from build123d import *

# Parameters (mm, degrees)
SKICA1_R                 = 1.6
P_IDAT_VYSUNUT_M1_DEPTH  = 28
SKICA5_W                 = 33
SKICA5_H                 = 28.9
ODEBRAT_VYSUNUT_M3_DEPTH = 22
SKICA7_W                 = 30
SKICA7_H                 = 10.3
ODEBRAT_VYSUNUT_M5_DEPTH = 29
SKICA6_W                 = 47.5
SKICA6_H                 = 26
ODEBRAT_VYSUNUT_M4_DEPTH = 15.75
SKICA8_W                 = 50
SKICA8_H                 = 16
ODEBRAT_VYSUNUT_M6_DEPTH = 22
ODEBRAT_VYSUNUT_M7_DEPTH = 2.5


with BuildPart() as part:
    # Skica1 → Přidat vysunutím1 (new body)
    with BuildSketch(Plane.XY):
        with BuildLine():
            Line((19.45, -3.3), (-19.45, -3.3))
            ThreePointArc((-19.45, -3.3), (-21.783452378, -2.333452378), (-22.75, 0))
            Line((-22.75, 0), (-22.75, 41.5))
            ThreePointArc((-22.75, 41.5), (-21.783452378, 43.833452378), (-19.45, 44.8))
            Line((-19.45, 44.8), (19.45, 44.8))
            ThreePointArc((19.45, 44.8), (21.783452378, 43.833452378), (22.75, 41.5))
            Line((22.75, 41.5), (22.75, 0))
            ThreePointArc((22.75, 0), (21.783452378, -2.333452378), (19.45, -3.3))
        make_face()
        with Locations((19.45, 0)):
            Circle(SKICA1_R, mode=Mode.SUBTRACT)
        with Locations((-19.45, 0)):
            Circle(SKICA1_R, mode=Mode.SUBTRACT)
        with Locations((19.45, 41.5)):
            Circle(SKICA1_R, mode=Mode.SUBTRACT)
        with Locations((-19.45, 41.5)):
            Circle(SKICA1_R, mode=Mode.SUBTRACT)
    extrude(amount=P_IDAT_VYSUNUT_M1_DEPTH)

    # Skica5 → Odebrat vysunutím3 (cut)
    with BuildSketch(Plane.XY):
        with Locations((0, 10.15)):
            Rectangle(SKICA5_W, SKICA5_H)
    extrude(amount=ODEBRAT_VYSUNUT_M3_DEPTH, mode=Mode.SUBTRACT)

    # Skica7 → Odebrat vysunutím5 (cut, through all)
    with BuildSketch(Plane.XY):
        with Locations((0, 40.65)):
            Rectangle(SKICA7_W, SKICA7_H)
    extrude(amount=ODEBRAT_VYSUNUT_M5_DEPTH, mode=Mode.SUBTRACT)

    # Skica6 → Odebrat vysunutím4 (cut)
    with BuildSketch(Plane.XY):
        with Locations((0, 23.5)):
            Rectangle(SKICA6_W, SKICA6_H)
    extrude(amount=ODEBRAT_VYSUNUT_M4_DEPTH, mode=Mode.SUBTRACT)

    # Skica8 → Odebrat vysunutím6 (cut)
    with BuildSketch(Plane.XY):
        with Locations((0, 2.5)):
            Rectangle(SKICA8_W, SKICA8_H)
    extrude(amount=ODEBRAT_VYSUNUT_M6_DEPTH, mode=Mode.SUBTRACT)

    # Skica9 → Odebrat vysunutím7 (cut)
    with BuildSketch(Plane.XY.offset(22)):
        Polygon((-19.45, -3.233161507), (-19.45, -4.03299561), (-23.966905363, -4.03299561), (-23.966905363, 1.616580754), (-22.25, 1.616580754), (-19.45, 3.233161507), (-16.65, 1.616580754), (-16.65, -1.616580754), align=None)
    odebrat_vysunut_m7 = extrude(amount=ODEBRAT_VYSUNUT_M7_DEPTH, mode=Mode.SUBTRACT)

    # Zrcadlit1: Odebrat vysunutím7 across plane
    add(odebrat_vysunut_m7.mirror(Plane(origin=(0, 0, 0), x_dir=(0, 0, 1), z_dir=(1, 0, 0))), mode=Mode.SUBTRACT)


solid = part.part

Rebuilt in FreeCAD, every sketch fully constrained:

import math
import FreeCAD as App
import Part
import Sketcher

V = App.Vector
Q = App.Units.Quantity

doc = App.newDocument("Part")
params = doc.addObject("Spreadsheet::Sheet", "Params")
for row, (alias, value) in enumerate([
    ("sketch1_diameter", "3.2 mm"),
    ("sketch1_radius", "3.3 mm"),
    ("sketch1_width", "38.9 mm"),
    ("sketch1_height", "41.5 mm"),
    ("pad1_length", "28 mm"),
    ("sketch2_width", "33 mm"),
    ("sketch2_height", "28.9 mm"),
    ("pocket1_length", "22 mm"),
    ("sketch3_width", "30 mm"),
    ("sketch3_height", "10.3 mm"),
    ("sketch4_height", "26 mm"),
    ("sketch4_width", "47.5 mm"),
    ("pocket3_length", "15.75 mm"),
    ("sketch5_width", "50 mm"),
    ("sketch5_height", "16 mm"),
    ("pocket4_length", "22 mm"),
    ("pocket5_length", "2.5 mm"),
], start=1):
    params.set(f"A{row}", alias)
    params.set(f"B{row}", "=" + value)
    params.setAlias(f"B{row}", alias)

body = doc.addObject("PartDesign::Body", "Body")

sketch1 = body.newObject("Sketcher::SketchObject", "Sketch")
sketch1.AttachmentSupport = (doc.getObject("XY_Plane"), [""])
sketch1.MapMode = "FlatFace"
sketch1.addGeometry([
    Part.LineSegment(V(-19.4, -3.3, 0), V(19.4, -3.3, 0)),
    Part.ArcOfCircle(Part.Circle(V(19.4, 0, 0), V(0, 0, 1), 3.3), math.radians(-90), math.radians(0)),
    Part.LineSegment(V(22.8, 0, 0), V(22.8, 41.5, 0)),
    Part.ArcOfCircle(Part.Circle(V(19.4, 41.5, 0), V(0, 0, 1), 3.3), math.radians(0), math.radians(90)),
    Part.LineSegment(V(19.4, 44.8, 0), V(-19.4, 44.8, 0)),
    Part.ArcOfCircle(Part.Circle(V(-19.4, 41.5, 0), V(0, 0, 1), 3.3), math.radians(90), math.radians(180)),
    Part.LineSegment(V(-22.8, 41.5, 0), V(-22.8, 0, 0)),
    Part.ArcOfCircle(Part.Circle(V(-19.4, 0, 0), V(0, 0, 1), 3.3), math.radians(180), math.radians(270)),
    Part.Circle(V(19.4, 0, 0), V(0, 0, 1), 1.6),
    Part.Circle(V(-19.4, 0, 0), V(0, 0, 1), 1.6),
    Part.Circle(V(19.4, 41.5, 0), V(0, 0, 1), 1.6),
    Part.Circle(V(-19.4, 41.5, 0), V(0, 0, 1), 1.6),
], False)
sketch1.addConstraint([
    Sketcher.Constraint("Tangent", 0, 2, 1, 1),
    Sketcher.Constraint("Tangent", 1, 2, 2, 1),
    Sketcher.Constraint("Tangent", 2, 2, 3, 1),
    Sketcher.Constraint("Tangent", 3, 2, 4, 1),
    Sketcher.Constraint("Tangent", 4, 2, 5, 1),
    Sketcher.Constraint("Tangent", 5, 2, 6, 1),
    Sketcher.Constraint("Tangent", 6, 2, 7, 1),
    Sketcher.Constraint("Tangent", 7, 2, 0, 1),
    Sketcher.Constraint("Horizontal", 0),
    Sketcher.Constraint("Vertical", 2),
    Sketcher.Constraint("Horizontal", 4),
    Sketcher.Constraint("Vertical", 6),
    Sketcher.Constraint("Coincident", 8, 3, 1, 3),
    Sketcher.Constraint("Coincident", 9, 3, 7, 3),
    Sketcher.Constraint("Coincident", 10, 3, 3, 3),
    Sketcher.Constraint("Coincident", 11, 3, 5, 3),
    Sketcher.Constraint("Equal", 1, 3),
    Sketcher.Constraint("Equal", 3, 5),
    Sketcher.Constraint("Equal", 5, 7),
    Sketcher.Constraint("Equal", 8, 9),
    Sketcher.Constraint("Equal", 9, 10),
    Sketcher.Constraint("Equal", 10, 11),
    Sketcher.Constraint("Symmetric", 1, 3, 7, 3, -1, 1),
    Sketcher.Constraint("Diameter", 8, Q("3.2 mm")),
    Sketcher.Constraint("Radius", 1, Q("3.3 mm")),
    Sketcher.Constraint("DistanceX", 0, 1, 0, 2, Q("38.9 mm")),
    Sketcher.Constraint("DistanceY", 2, 1, 2, 2, Q("41.5 mm")),
])
sketch1.setExpression("Constraints[23]", "Params.sketch1_diameter")
sketch1.setExpression("Constraints[24]", "Params.sketch1_radius")
sketch1.setExpression("Constraints[25]", "Params.sketch1_width")
sketch1.setExpression("Constraints[26]", "Params.sketch1_height")
pad1 = body.newObject("PartDesign::Pad", "Pad")
pad1.Profile = sketch1
pad1.setExpression("Length", "Params.pad1_length")

sketch2 = body.newObject("Sketcher::SketchObject", "Sketch001")
sketch2.AttachmentSupport = (doc.getObject("XY_Plane"), [""])
sketch2.MapMode = "FlatFace"
sketch2.addGeometry([
    Part.LineSegment(V(-16, 25, 0), V(-16, -4, 0)),
    Part.LineSegment(V(-16, -4, 0), V(16, -4, 0)),
    Part.LineSegment(V(16, -4, 0), V(16, 25, 0)),
    Part.LineSegment(V(16, 25, 0), V(-16, 25, 0)),
], False)
sketch2.addConstraint([
    Sketcher.Constraint("Coincident", 0, 2, 1, 1),
    Sketcher.Constraint("Coincident", 1, 2, 2, 1),
    Sketcher.Constraint("Coincident", 2, 2, 3, 1),
    Sketcher.Constraint("Coincident", 3, 2, 0, 1),
    Sketcher.Constraint("Vertical", 0),
    Sketcher.Constraint("Horizontal", 1),
    Sketcher.Constraint("Vertical", 2),
    Sketcher.Constraint("Horizontal", 3),
    Sketcher.Constraint("DistanceX", 1, 1, 1, 2, Q("33 mm")),
    Sketcher.Constraint("DistanceY", 0, 2, 0, 1, Q("28.9 mm")),
    Sketcher.Constraint("DistanceX", 0, 2, -1, 1, Q("16.5 mm")),
    Sketcher.Constraint("DistanceY", 0, 2, -1, 1, Q("4.3 mm")),
])
sketch2.setExpression("Constraints[8]", "Params.sketch2_width")
sketch2.setExpression("Constraints[9]", "Params.sketch2_height")
pocket1 = body.newObject("PartDesign::Pocket", "Pocket")
pocket1.Profile = sketch2
pocket1.setExpression("Length", "Params.pocket1_length")
pocket1.Reversed = True

sketch3 = body.newObject("Sketcher::SketchObject", "Sketch002")
sketch3.AttachmentSupport = (doc.getObject("XY_Plane"), [""])
sketch3.MapMode = "FlatFace"
sketch3.addGeometry([
    Part.LineSegment(V(-15, 46, 0), V(-15, 36, 0)),
    Part.LineSegment(V(-15, 36, 0), V(15, 36, 0)),
    Part.LineSegment(V(15, 36, 0), V(15, 46, 0)),
    Part.LineSegment(V(15, 46, 0), V(-15, 46, 0)),
], False)
sketch3.addConstraint([
    Sketcher.Constraint("Coincident", 0, 2, 1, 1),
    Sketcher.Constraint("Coincident", 1, 2, 2, 1),
    Sketcher.Constraint("Coincident", 2, 2, 3, 1),
    Sketcher.Constraint("Coincident", 3, 2, 0, 1),
    Sketcher.Constraint("Vertical", 0),
    Sketcher.Constraint("Horizontal", 1),
    Sketcher.Constraint("Vertical", 2),
    Sketcher.Constraint("Horizontal", 3),
    Sketcher.Constraint("DistanceX", 1, 1, 1, 2, Q("30 mm")),
    Sketcher.Constraint("DistanceY", 0, 2, 0, 1, Q("10.3 mm")),
    Sketcher.Constraint("DistanceX", 0, 2, -1, 1, Q("15 mm")),
    Sketcher.Constraint("DistanceY", -1, 1, 0, 2, Q("35.5 mm")),
])
sketch3.setExpression("Constraints[8]", "Params.sketch3_width")
sketch3.setExpression("Constraints[9]", "Params.sketch3_height")
pocket2 = body.newObject("PartDesign::Pocket", "Pocket001")
pocket2.Profile = sketch3
pocket2.Type = "ThroughAll"
pocket2.Reversed = True

sketch4 = body.newObject("Sketcher::SketchObject", "Sketch003")
sketch4.AttachmentSupport = (doc.getObject("XY_Plane"), [""])
sketch4.MapMode = "FlatFace"
sketch4.addGeometry([
    Part.LineSegment(V(-24, 36, 0), V(-24, 10, 0)),
    Part.LineSegment(V(-24, 10, 0), V(24, 10, 0)),
    Part.LineSegment(V(24, 10, 0), V(24, 36, 0)),
    Part.LineSegment(V(24, 36, 0), V(-24, 36, 0)),
], False)
sketch4.addConstraint([
    Sketcher.Constraint("Coincident", 0, 2, 1, 1),
    Sketcher.Constraint("Coincident", 1, 2, 2, 1),
    Sketcher.Constraint("Coincident", 2, 2, 3, 1),
    Sketcher.Constraint("Coincident", 3, 2, 0, 1),
    Sketcher.Constraint("Vertical", 0),
    Sketcher.Constraint("Horizontal", 1),
    Sketcher.Constraint("Vertical", 2),
    Sketcher.Constraint("Horizontal", 3),
    Sketcher.Constraint("DistanceY", 0, 2, 0, 1, Q("26 mm")),
    Sketcher.Constraint("DistanceX", 1, 1, 1, 2, Q("47.5 mm")),
    Sketcher.Constraint("DistanceY", -1, 1, 0, 2, Q("10.5 mm")),
    Sketcher.Constraint("DistanceX", 0, 2, -1, 1, Q("23.75 mm")),
])
sketch4.setExpression("Constraints[8]", "Params.sketch4_height")
sketch4.setExpression("Constraints[9]", "Params.sketch4_width")
pocket3 = body.newObject("PartDesign::Pocket", "Pocket002")
pocket3.Profile = sketch4
pocket3.setExpression("Length", "Params.pocket3_length")
pocket3.Reversed = True

sketch5 = body.newObject("Sketcher::SketchObject", "Sketch004")
sketch5.AttachmentSupport = (doc.getObject("XY_Plane"), [""])
sketch5.MapMode = "FlatFace"
sketch5.addGeometry([
    Part.LineSegment(V(-25, 10, 0), V(-25, -6, 0)),
    Part.LineSegment(V(-25, -6, 0), V(25, -6, 0)),
    Part.LineSegment(V(25, -6, 0), V(25, 10, 0)),
    Part.LineSegment(V(25, 10, 0), V(-25, 10, 0)),
], False)
sketch5.addConstraint([
    Sketcher.Constraint("Coincident", 0, 2, 1, 1),
    Sketcher.Constraint("Coincident", 1, 2, 2, 1),
    Sketcher.Constraint("Coincident", 2, 2, 3, 1),
    Sketcher.Constraint("Coincident", 3, 2, 0, 1),
    Sketcher.Constraint("Vertical", 0),
    Sketcher.Constraint("Horizontal", 1),
    Sketcher.Constraint("Vertical", 2),
    Sketcher.Constraint("Horizontal", 3),
    Sketcher.Constraint("DistanceX", 1, 1, 1, 2, Q("50 mm")),
    Sketcher.Constraint("DistanceY", 0, 2, 0, 1, Q("16 mm")),
    Sketcher.Constraint("DistanceX", 0, 2, -1, 1, Q("25 mm")),
    Sketcher.Constraint("DistanceY", 0, 2, -1, 1, Q("5.5 mm")),
])
sketch5.setExpression("Constraints[8]", "Params.sketch5_width")
sketch5.setExpression("Constraints[9]", "Params.sketch5_height")
pocket4 = body.newObject("PartDesign::Pocket", "Pocket003")
pocket4.Profile = sketch5
pocket4.setExpression("Length", "Params.pocket4_length")
pocket4.Reversed = True

sketch6 = body.newObject("Sketcher::SketchObject", "Sketch005")
sketch6.AttachmentSupport = (doc.getObject("XY_Plane"), [""])
sketch6.MapMode = "FlatFace"
sketch6.AttachmentOffset = App.Placement(V(0, 0, 22), App.Rotation())
sketch6.addGeometry([
    Part.LineSegment(V(-19.4, -4, 0), V(-19.4, -3.2, 0)),
    Part.LineSegment(V(-19.4, -3.2, 0), V(-16.6, -1.6, 0)),
    Part.LineSegment(V(-16.6, -1.6, 0), V(-16.6, 1.6, 0)),
    Part.LineSegment(V(-16.6, 1.6, 0), V(-19.4, 3.2, 0)),
    Part.LineSegment(V(-19.4, 3.2, 0), V(-22.2, 1.6, 0)),
    Part.LineSegment(V(-22.2, 1.6, 0), V(-24, 1.6, 0)),
    Part.LineSegment(V(-24, 1.6, 0), V(-24, -4, 0)),
    Part.LineSegment(V(-24, -4, 0), V(-19.4, -4, 0)),
], False)
sketch6.addConstraint([
    Sketcher.Constraint("Coincident", 0, 2, 1, 1),
    Sketcher.Constraint("Coincident", 1, 2, 2, 1),
    Sketcher.Constraint("Coincident", 2, 2, 3, 1),
    Sketcher.Constraint("Coincident", 3, 2, 4, 1),
    Sketcher.Constraint("Coincident", 4, 2, 5, 1),
    Sketcher.Constraint("Coincident", 5, 2, 6, 1),
    Sketcher.Constraint("Coincident", 6, 2, 7, 1),
    Sketcher.Constraint("Coincident", 7, 2, 0, 1),
    Sketcher.Constraint("Vertical", 0),
    Sketcher.Constraint("Vertical", 2),
    Sketcher.Constraint("Horizontal", 5),
    Sketcher.Constraint("Vertical", 6),
    Sketcher.Constraint("Horizontal", 7),
    Sketcher.Constraint("Symmetric", 0, 2, 3, 2, -1),
    Sketcher.Constraint("Parallel", 1, 4),
    Sketcher.Constraint("Horizontal", 2, 2, 4, 2),
    Sketcher.Constraint("Equal", 1, 3),
    Sketcher.Constraint("Angle", 1, Q("30 deg")),
    Sketcher.Constraint("DistanceX", 0, 2, 1, 2, Q("2.8 mm")),
    Sketcher.Constraint("DistanceX", 0, 2, -1, 1, Q("19.45 mm")),
    Sketcher.Constraint("DistanceY", 2, 1, 2, 2, Q("3.233162 mm")),
    Sketcher.Constraint("DistanceX", 5, 2, 5, 1, Q("1.716905 mm")),
    Sketcher.Constraint("DistanceY", 0, 1, 0, 2, Q("0.799834 mm")),
])
pocket5 = body.newObject("PartDesign::Pocket", "Pocket004")
pocket5.Profile = sketch6
pocket5.setExpression("Length", "Params.pocket5_length")
pocket5.Reversed = True
doc.recompute()

mirrored = body.newObject("PartDesign::Mirrored", "Mirrored")
mirrored.Originals = [pocket5]
mirrored.MirrorPlane = (doc.getObject("YZ_Plane"), [""])
body.Tip = mirrored

doc.recompute()
